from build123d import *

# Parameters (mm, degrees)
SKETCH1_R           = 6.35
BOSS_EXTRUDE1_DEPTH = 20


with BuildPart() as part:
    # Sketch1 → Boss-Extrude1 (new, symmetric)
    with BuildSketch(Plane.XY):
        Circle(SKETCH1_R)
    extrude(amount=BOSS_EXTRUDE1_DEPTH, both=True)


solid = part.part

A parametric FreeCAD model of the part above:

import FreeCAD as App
import Part
import Sketcher

V = App.Vector
Q = App.Units.Quantity

doc = App.newDocument("Part")
body = doc.addObject("PartDesign::Body", "Body")

# Sketch on XY plane
sketch1 = body.newObject("Sketcher::SketchObject", "Sketch")
sketch1.AttachmentSupport = (doc.getObject("XY_Plane"), [""])
sketch1.MapMode = "FlatFace"
sketch1.addGeometry(Part.Circle(V(0, 0, 0), V(0, 0, 1), 6), False)
sketch1.addConstraint(Sketcher.Constraint("Coincident", 0, 3, -1, 1))
sketch1.addConstraint(Sketcher.Constraint("Diameter", 0, Q("12.7 mm")))
pad1 = body.newObject("PartDesign::Pad", "Pad")
pad1.Profile = sketch1
pad1.Length = 40
pad1.Midplane = True

doc.recompute()
